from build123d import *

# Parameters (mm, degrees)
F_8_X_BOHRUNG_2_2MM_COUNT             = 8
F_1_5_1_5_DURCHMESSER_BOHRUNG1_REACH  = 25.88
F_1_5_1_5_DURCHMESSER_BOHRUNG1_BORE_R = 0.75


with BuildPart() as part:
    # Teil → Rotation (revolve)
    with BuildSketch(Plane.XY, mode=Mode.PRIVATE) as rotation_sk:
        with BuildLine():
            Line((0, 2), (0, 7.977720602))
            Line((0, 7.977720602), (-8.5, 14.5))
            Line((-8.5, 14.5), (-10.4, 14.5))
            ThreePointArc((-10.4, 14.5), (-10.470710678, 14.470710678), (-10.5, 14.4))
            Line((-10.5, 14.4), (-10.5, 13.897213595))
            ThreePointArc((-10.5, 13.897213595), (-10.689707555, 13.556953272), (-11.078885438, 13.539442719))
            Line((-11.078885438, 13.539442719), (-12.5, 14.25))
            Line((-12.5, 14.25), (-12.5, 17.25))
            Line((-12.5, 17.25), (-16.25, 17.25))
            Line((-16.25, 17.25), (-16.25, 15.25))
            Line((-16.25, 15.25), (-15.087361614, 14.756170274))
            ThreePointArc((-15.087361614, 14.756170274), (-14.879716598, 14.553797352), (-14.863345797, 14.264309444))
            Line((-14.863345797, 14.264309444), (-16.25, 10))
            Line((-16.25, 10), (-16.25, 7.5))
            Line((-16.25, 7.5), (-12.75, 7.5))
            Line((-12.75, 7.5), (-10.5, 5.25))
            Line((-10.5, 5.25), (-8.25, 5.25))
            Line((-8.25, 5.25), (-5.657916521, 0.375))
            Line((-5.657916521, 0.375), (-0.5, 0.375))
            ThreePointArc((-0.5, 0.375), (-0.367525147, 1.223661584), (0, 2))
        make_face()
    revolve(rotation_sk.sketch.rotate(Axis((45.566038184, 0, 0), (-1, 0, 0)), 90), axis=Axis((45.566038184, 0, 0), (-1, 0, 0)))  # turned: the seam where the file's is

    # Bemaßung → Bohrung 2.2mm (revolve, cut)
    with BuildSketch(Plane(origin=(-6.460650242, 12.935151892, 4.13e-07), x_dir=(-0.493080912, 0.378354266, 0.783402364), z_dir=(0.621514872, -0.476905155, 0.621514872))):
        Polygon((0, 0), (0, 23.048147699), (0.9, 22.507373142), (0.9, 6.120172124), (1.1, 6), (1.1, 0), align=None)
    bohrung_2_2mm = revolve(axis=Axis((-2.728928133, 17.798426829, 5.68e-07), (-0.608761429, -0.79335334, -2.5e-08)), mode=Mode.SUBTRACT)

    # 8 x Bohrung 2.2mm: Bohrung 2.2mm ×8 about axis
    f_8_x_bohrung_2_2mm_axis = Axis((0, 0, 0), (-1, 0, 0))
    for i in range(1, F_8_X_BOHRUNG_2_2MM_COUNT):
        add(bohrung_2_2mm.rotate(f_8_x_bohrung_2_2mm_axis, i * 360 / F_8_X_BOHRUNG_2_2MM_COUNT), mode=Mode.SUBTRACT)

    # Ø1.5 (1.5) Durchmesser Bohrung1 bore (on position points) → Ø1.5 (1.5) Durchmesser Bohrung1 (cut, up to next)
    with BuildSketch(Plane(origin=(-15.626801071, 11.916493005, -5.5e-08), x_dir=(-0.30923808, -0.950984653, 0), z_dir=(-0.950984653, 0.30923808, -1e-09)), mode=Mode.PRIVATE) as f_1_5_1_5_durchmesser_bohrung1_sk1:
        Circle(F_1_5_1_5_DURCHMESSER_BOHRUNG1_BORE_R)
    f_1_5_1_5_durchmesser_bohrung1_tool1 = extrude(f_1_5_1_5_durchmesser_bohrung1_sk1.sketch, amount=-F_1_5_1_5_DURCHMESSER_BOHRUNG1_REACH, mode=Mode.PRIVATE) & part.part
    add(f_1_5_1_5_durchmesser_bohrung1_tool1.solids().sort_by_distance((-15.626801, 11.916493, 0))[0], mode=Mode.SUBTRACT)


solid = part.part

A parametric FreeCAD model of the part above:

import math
import FreeCAD as App
import Part
import Sketcher
Q = App.Units.Quantity


def add_polygon(sketch, points):
    """Adds a closed chain of lines whose ends are joined by coincident constraints."""
    first, n = sketch.GeometryCount, len(points)
    for a, b in zip(points, points[1:] + points[:1]):
        sketch.addGeometry(Part.LineSegment(App.Vector(*a, 0), App.Vector(*b, 0)), False)
    for i in range(n):
        sketch.addConstraint(Sketcher.Constraint("Coincident", first + i, 2, first + (i + 1) % n, 1))

doc = App.newDocument("Part")
body = doc.addObject("PartDesign::Body", "Body")

sketch1 = body.newObject("Sketcher::SketchObject", "Sketch")
sketch1.AttachmentSupport = (doc.getObject("XY_Plane"), [""])
sketch1.MapMode = "FlatFace"
sketch1.addGeometry(Part.LineSegment(App.Vector(0, 2, 0), App.Vector(0, 7.98, 0)), False)
sketch1.addGeometry(Part.LineSegment(App.Vector(0, 7.98, 0), App.Vector(-8.5, 14.5, 0)), False)
sketch1.addGeometry(Part.LineSegment(App.Vector(-8.5, 14.5, 0), App.Vector(-10.4, 14.5, 0)), False)
sketch1.addGeometry(Part.ArcOfCircle(Part.Circle(App.Vector(-10.4, 14.4, 0), App.Vector(0, 0, 1), 0.1), math.radians(90), math.radians(180)), False)
sketch1.addGeometry(Part.LineSegment(App.Vector(-10.5, 14.4, 0), App.Vector(-10.5, 13.9, 0)), False)
sketch1.addGeometry(Part.ArcOfCircle(Part.Circle(App.Vector(-10.9, 13.9, 0), App.Vector(0, 0, 1), 0.4), math.radians(-117), math.radians(0)), False)
sketch1.addGeometry(Part.LineSegment(App.Vector(-11.08, 13.54, 0), App.Vector(-12.5, 14.25, 0)), False)
sketch1.addGeometry(Part.LineSegment(App.Vector(-12.5, 14.25, 0), App.Vector(-12.5, 17.25, 0)), False)
sketch1.addGeometry(Part.LineSegment(App.Vector(-12.5, 17.25, 0), App.Vector(-16.25, 17.25, 0)), False)
sketch1.addGeometry(Part.LineSegment(App.Vector(-16.25, 17.25, 0), App.Vector(-16.25, 15.25, 0)), False)
sketch1.addGeometry(Part.LineSegment(App.Vector(-16.25, 15.25, 0), App.Vector(-15.09, 14.76, 0)), False)
sketch1.addGeometry(Part.ArcOfCircle(Part.Circle(App.Vector(-15.24, 14.39, 0), App.Vector(0, 0, 1), 0.4), math.radians(-18), math.radians(67)), False)
sketch1.addGeometry(Part.LineSegment(App.Vector(-14.86, 14.26, 0), App.Vector(-16.25, 10, 0)), False)
sketch1.addGeometry(Part.LineSegment(App.Vector(-16.25, 10, 0), App.Vector(-16.25, 7.5, 0)), False)
sketch1.addGeometry(Part.LineSegment(App.Vector(-16.25, 7.5, 0), App.Vector(-12.75, 7.5, 0)), False)
sketch1.addGeometry(Part.LineSegment(App.Vector(-12.75, 7.5, 0), App.Vector(-10.5, 5.25, 0)), False)
sketch1.addGeometry(Part.LineSegment(App.Vector(-10.5, 5.25, 0), App.Vector(-8.25, 5.25, 0)), False)
sketch1.addGeometry(Part.LineSegment(App.Vector(-8.25, 5.25, 0), App.Vector(-5.66, 0.38, 0)), False)
sketch1.addGeometry(Part.LineSegment(App.Vector(-5.66, 0.38, 0), App.Vector(-0.5, 0.38, 0)), False)
sketch1.addGeometry(Part.ArcOfCircle(Part.Circle(App.Vector(2.5, 0.34, 0), App.Vector(0, 0, 1), 3), math.radians(146), math.radians(179)), False)
sketch1.addConstraint(Sketcher.Constraint("Coincident", 0, 2, 1, 1))
sketch1.addConstraint(Sketcher.Constraint("Coincident", 1, 2, 2, 1))
sketch1.addConstraint(Sketcher.Constraint("Tangent", 2, 2, 3, 1))
sketch1.addConstraint(Sketcher.Constraint("Tangent", 3, 2, 4, 1))
sketch1.addConstraint(Sketcher.Constraint("Tangent", 4, 2, 5, 2))
sketch1.addConstraint(Sketcher.Constraint("Tangent", 5, 1, 6, 1))
sketch1.addConstraint(Sketcher.Constraint("Coincident", 6, 2, 7, 1))
sketch1.addConstraint(Sketcher.Constraint("Coincident", 7, 2, 8, 1))
sketch1.addConstraint(Sketcher.Constraint("Coincident", 8, 2, 9, 1))
sketch1.addConstraint(Sketcher.Constraint("Coincident", 9, 2, 10, 1))
sketch1.addConstraint(Sketcher.Constraint("Tangent", 10, 2, 11, 2))
sketch1.addConstraint(Sketcher.Constraint("Tangent", 11, 1, 12, 1))
sketch1.addConstraint(Sketcher.Constraint("Coincident", 12, 2, 13, 1))
sketch1.addConstraint(Sketcher.Constraint("Coincident", 13, 2, 14, 1))
sketch1.addConstraint(Sketcher.Constraint("Coincident", 14, 2, 15, 1))
sketch1.addConstraint(Sketcher.Constraint("Coincident", 15, 2, 16, 1))
sketch1.addConstraint(Sketcher.Constraint("Coincident", 16, 2, 17, 1))
sketch1.addConstraint(Sketcher.Constraint("Coincident", 17, 2, 18, 1))
sketch1.addConstraint(Sketcher.Constraint("Coincident", 18, 2, 19, 2))
sketch1.addConstraint(Sketcher.Constraint("Coincident", 19, 1, 0, 1))
sketch1.addConstraint(Sketcher.Constraint("Vertical", 0))
sketch1.addConstraint(Sketcher.Constraint("Horizontal", 2))
sketch1.addConstraint(Sketcher.Constraint("Vertical", 4))
sketch1.addConstraint(Sketcher.Constraint("Vertical", 7))
sketch1.addConstraint(Sketcher.Constraint("Horizontal", 8))
sketch1.addConstraint(Sketcher.Constraint("Vertical", 9))
sketch1.addConstraint(Sketcher.Constraint("Vertical", 13))
sketch1.addConstraint(Sketcher.Constraint("Horizontal", 14))
sketch1.addConstraint(Sketcher.Constraint("Horizontal", 16))
sketch1.addConstraint(Sketcher.Constraint("Horizontal", 18))
sketch1.addConstraint(Sketcher.Constraint("Equal", 5, 11))
sketch1.addConstraint(Sketcher.Constraint("PointOnObject", 0, 2, -2))
sketch1.addConstraint(Sketcher.Constraint("Vertical", 9, 2, 12, 2))
sketch1.addConstraint(Sketcher.Constraint("Vertical", 4, 2, 15, 2))
sketch1.addConstraint(Sketcher.Constraint("Radius", 19, Q("3 mm")))
sketch1.addConstraint(Sketcher.Constraint("Radius", 3, Q("0.1 mm")))
sketch1.addConstraint(Sketcher.Constraint("Radius", 5, Q("0.4 mm")))
sketch1.addConstraint(Sketcher.Constraint("DistanceY", 7, 1, 7, 2, Q("3 mm")))
sketch1.addConstraint(Sketcher.Constraint("DistanceY", 9, 2, 9, 1, Q("2 mm")))
sketch1.addConstraint(Sketcher.Constraint("Angle", 15, Q("-45 deg")))
sketch1.addConstraint(Sketcher.Constraint("Angle", 17, Q("-62 deg")))
sketch1.addConstraint(Sketcher.Constraint("DistanceX", 2, 2, 2, 1, Q("1.9 mm")))
sketch1.addConstraint(Sketcher.Constraint("DistanceX", 14, 1, 14, 2, Q("3.5 mm")))
sketch1.addConstraint(Sketcher.Constraint("DistanceY", 13, 2, 13, 1, Q("2.5 mm")))
sketch1.addConstraint(Sketcher.Constraint("DistanceY", -1, 1, 12, 2, Q("10 mm")))
sketch1.addConstraint(Sketcher.Constraint("DistanceY", -1, 1, 19, 1, Q("2 mm")))
sketch1.addConstraint(Sketcher.Constraint("Angle", 1, Q("142.5 deg")))
sketch1.addConstraint(Sketcher.Constraint("DistanceX", 6, 2, 3, 2, Q("2 mm")))
sketch1.addConstraint(Sketcher.Constraint("DistanceX", 13, 2, 16, 2, Q("8 mm")))
sketch1.addConstraint(Sketcher.Constraint("DistanceX", 15, 2, 18, 2, Q("10 mm")))
sketch1.addConstraint(Sketcher.Constraint("DistanceX", 8, 2, 8, 1, Q("3.75 mm")))
sketch1.addConstraint(Sketcher.Constraint("DistanceX", 3, 3, -1, 1, Q("10.4 mm")))
sketch1.addConstraint(Sketcher.Constraint("DistanceY", -1, 1, 3, 3, Q("14.4 mm")))
sketch1.addConstraint(Sketcher.Constraint("DistanceY", -1, 1, 6, 2, Q("14.25 mm")))
sketch1.addConstraint(Sketcher.Constraint("DistanceY", -1, 1, 17, 2, Q("0.375 mm")))
sketch1.addConstraint(Sketcher.Constraint("Distance", 12, Q("4.484099 mm")))
sketch1.addConstraint(Sketcher.Constraint("DistanceY", 19, 3, 11, 3, Q("14.046601 mm")))
sketch1.addConstraint(Sketcher.Constraint("DistanceY", 4, 2, 4, 1, Q("0.502786 mm")))
revolution = body.newObject("PartDesign::Revolution", "Revolution")
revolution.Profile = sketch1
revolution.ReferenceAxis = (sketch1, ["H_Axis"])
revolution.Angle = 360

sketch2 = body.newObject("Sketcher::SketchObject", "Sketch001")
sketch2.Placement = App.Placement(App.Vector(-6.46065, 12.935152, 0), App.Rotation(App.Vector(-0.493080912, 0.378354266, 0.783402364), App.Vector(-0.608761429, -0.79335334, -0.000000026), App.Vector(0.621514872, -0.476905155, 0.621514872), "ZXY"))
add_polygon(sketch2, [(0, 23.05), (0, 0), (1.1, 0), (1.1, 6), (0.9, 6.12), (0.9, 22.51)])
sketch2.addConstraint(Sketcher.Constraint("Vertical", 0))
sketch2.addConstraint(Sketcher.Constraint("Horizontal", 1))
sketch2.addConstraint(Sketcher.Constraint("Vertical", 2))
sketch2.addConstraint(Sketcher.Constraint("Vertical", 4))
sketch2.addConstraint(Sketcher.Constraint("Coincident", 0, 2, -1, 1))
sketch2.addConstraint(Sketcher.Constraint("Parallel", 3, 5))
sketch2.addConstraint(Sketcher.Constraint("DistanceY", 2, 1, 2, 2, Q("6 mm")))
sketch2.addConstraint(Sketcher.Constraint("Angle", 3, Q("149 deg")))
sketch2.addConstraint(Sketcher.Constraint("DistanceX", 1, 1, 1, 2, Q("1.1 mm")))
sketch2.addConstraint(Sketcher.Constraint("DistanceX", -1, 1, 3, 2, Q("0.9 mm")))
sketch2.addConstraint(Sketcher.Constraint("DistanceY", 4, 1, 4, 2, Q("16.387201 mm")))
groove = body.newObject("PartDesign::Groove", "Groove")
groove.Profile = sketch2
groove.ReferenceAxis = (sketch2, ["V_Axis"])
groove.Angle = 360
doc.recompute()

polarpattern = body.newObject("PartDesign::PolarPattern", "PolarPattern")
polarpattern.Originals = [groove]
polarpattern.Axis = (doc.getObject("X_Axis"), [""])
polarpattern.Angle = 360
polarpattern.Occurrences = 8
body.Tip = polarpattern

sketch3 = body.newObject("Sketcher::SketchObject", "Sketch002")
sketch3.Placement = App.Placement(App.Vector(-15.626801, 11.916493, 0), App.Rotation(App.Vector(-0.30923808, -0.950984653, 0), App.Vector(-0.000000001, 0, 1), App.Vector(-0.950984653, 0.30923808, -0.000000001), "ZXY"))
sketch3.addGeometry(Part.Circle(App.Vector(0, 0, 0), App.Vector(0, 0, 1), 0.8), False)
sketch3.addConstraint(Sketcher.Constraint("Coincident", 0, 3, -1, 1))
sketch3.addConstraint(Sketcher.Constraint("Diameter", 0, Q("1.5 mm")))
pocket1 = body.newObject("PartDesign::Pocket", "Pocket")
pocket1.Profile = sketch3
pocket1.Type = "UpToFirst"

doc.recompute()
